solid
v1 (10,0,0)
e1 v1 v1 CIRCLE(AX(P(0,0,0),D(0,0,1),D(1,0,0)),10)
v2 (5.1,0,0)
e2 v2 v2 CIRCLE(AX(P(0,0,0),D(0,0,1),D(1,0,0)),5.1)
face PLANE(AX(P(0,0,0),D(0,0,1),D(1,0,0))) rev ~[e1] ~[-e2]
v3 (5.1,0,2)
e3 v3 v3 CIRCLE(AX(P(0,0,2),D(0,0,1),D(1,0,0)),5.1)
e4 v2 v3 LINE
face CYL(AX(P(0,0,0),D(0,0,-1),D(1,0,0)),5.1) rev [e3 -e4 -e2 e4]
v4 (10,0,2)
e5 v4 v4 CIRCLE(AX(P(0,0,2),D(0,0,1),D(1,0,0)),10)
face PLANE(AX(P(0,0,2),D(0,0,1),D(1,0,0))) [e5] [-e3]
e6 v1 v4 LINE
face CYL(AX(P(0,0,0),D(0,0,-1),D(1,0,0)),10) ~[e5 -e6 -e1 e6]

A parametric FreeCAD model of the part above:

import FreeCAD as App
import Part
import Sketcher

V = App.Vector
Q = App.Units.Quantity

doc = App.newDocument("Part")
body = doc.addObject("PartDesign::Body", "Body")

sketch1 = doc.addObject("Sketcher::SketchObject", "Sketch")
body.addObject(sketch1)
sketch1.AttachmentSupport = (doc.XY_Plane, [""])
sketch1.MapMode = "FlatFace"
sketch1.addGeometry(Part.Circle(V(0, 0, 0), V(0, 0, 1), 10), False)
sketch1.addGeometry(Part.Circle(V(0, 0, 0), V(0, 0, 1), 5.1), False)
sketch1.addConstraint(Sketcher.Constraint("Coincident", 0, 3, -1, 1))
sketch1.addConstraint(Sketcher.Constraint("Coincident", 1, 3, -1, 1))
sketch1.addConstraint(Sketcher.Constraint("Diameter", 0, Q("20 mm")))
sketch1.addConstraint(Sketcher.Constraint("Diameter", 1, Q("10.2 mm")))
pad1 = doc.addObject("PartDesign::Pad", "Pad")
body.addObject(pad1)
pad1.Profile = sketch1
pad1.Length = 2

doc.recompute()
